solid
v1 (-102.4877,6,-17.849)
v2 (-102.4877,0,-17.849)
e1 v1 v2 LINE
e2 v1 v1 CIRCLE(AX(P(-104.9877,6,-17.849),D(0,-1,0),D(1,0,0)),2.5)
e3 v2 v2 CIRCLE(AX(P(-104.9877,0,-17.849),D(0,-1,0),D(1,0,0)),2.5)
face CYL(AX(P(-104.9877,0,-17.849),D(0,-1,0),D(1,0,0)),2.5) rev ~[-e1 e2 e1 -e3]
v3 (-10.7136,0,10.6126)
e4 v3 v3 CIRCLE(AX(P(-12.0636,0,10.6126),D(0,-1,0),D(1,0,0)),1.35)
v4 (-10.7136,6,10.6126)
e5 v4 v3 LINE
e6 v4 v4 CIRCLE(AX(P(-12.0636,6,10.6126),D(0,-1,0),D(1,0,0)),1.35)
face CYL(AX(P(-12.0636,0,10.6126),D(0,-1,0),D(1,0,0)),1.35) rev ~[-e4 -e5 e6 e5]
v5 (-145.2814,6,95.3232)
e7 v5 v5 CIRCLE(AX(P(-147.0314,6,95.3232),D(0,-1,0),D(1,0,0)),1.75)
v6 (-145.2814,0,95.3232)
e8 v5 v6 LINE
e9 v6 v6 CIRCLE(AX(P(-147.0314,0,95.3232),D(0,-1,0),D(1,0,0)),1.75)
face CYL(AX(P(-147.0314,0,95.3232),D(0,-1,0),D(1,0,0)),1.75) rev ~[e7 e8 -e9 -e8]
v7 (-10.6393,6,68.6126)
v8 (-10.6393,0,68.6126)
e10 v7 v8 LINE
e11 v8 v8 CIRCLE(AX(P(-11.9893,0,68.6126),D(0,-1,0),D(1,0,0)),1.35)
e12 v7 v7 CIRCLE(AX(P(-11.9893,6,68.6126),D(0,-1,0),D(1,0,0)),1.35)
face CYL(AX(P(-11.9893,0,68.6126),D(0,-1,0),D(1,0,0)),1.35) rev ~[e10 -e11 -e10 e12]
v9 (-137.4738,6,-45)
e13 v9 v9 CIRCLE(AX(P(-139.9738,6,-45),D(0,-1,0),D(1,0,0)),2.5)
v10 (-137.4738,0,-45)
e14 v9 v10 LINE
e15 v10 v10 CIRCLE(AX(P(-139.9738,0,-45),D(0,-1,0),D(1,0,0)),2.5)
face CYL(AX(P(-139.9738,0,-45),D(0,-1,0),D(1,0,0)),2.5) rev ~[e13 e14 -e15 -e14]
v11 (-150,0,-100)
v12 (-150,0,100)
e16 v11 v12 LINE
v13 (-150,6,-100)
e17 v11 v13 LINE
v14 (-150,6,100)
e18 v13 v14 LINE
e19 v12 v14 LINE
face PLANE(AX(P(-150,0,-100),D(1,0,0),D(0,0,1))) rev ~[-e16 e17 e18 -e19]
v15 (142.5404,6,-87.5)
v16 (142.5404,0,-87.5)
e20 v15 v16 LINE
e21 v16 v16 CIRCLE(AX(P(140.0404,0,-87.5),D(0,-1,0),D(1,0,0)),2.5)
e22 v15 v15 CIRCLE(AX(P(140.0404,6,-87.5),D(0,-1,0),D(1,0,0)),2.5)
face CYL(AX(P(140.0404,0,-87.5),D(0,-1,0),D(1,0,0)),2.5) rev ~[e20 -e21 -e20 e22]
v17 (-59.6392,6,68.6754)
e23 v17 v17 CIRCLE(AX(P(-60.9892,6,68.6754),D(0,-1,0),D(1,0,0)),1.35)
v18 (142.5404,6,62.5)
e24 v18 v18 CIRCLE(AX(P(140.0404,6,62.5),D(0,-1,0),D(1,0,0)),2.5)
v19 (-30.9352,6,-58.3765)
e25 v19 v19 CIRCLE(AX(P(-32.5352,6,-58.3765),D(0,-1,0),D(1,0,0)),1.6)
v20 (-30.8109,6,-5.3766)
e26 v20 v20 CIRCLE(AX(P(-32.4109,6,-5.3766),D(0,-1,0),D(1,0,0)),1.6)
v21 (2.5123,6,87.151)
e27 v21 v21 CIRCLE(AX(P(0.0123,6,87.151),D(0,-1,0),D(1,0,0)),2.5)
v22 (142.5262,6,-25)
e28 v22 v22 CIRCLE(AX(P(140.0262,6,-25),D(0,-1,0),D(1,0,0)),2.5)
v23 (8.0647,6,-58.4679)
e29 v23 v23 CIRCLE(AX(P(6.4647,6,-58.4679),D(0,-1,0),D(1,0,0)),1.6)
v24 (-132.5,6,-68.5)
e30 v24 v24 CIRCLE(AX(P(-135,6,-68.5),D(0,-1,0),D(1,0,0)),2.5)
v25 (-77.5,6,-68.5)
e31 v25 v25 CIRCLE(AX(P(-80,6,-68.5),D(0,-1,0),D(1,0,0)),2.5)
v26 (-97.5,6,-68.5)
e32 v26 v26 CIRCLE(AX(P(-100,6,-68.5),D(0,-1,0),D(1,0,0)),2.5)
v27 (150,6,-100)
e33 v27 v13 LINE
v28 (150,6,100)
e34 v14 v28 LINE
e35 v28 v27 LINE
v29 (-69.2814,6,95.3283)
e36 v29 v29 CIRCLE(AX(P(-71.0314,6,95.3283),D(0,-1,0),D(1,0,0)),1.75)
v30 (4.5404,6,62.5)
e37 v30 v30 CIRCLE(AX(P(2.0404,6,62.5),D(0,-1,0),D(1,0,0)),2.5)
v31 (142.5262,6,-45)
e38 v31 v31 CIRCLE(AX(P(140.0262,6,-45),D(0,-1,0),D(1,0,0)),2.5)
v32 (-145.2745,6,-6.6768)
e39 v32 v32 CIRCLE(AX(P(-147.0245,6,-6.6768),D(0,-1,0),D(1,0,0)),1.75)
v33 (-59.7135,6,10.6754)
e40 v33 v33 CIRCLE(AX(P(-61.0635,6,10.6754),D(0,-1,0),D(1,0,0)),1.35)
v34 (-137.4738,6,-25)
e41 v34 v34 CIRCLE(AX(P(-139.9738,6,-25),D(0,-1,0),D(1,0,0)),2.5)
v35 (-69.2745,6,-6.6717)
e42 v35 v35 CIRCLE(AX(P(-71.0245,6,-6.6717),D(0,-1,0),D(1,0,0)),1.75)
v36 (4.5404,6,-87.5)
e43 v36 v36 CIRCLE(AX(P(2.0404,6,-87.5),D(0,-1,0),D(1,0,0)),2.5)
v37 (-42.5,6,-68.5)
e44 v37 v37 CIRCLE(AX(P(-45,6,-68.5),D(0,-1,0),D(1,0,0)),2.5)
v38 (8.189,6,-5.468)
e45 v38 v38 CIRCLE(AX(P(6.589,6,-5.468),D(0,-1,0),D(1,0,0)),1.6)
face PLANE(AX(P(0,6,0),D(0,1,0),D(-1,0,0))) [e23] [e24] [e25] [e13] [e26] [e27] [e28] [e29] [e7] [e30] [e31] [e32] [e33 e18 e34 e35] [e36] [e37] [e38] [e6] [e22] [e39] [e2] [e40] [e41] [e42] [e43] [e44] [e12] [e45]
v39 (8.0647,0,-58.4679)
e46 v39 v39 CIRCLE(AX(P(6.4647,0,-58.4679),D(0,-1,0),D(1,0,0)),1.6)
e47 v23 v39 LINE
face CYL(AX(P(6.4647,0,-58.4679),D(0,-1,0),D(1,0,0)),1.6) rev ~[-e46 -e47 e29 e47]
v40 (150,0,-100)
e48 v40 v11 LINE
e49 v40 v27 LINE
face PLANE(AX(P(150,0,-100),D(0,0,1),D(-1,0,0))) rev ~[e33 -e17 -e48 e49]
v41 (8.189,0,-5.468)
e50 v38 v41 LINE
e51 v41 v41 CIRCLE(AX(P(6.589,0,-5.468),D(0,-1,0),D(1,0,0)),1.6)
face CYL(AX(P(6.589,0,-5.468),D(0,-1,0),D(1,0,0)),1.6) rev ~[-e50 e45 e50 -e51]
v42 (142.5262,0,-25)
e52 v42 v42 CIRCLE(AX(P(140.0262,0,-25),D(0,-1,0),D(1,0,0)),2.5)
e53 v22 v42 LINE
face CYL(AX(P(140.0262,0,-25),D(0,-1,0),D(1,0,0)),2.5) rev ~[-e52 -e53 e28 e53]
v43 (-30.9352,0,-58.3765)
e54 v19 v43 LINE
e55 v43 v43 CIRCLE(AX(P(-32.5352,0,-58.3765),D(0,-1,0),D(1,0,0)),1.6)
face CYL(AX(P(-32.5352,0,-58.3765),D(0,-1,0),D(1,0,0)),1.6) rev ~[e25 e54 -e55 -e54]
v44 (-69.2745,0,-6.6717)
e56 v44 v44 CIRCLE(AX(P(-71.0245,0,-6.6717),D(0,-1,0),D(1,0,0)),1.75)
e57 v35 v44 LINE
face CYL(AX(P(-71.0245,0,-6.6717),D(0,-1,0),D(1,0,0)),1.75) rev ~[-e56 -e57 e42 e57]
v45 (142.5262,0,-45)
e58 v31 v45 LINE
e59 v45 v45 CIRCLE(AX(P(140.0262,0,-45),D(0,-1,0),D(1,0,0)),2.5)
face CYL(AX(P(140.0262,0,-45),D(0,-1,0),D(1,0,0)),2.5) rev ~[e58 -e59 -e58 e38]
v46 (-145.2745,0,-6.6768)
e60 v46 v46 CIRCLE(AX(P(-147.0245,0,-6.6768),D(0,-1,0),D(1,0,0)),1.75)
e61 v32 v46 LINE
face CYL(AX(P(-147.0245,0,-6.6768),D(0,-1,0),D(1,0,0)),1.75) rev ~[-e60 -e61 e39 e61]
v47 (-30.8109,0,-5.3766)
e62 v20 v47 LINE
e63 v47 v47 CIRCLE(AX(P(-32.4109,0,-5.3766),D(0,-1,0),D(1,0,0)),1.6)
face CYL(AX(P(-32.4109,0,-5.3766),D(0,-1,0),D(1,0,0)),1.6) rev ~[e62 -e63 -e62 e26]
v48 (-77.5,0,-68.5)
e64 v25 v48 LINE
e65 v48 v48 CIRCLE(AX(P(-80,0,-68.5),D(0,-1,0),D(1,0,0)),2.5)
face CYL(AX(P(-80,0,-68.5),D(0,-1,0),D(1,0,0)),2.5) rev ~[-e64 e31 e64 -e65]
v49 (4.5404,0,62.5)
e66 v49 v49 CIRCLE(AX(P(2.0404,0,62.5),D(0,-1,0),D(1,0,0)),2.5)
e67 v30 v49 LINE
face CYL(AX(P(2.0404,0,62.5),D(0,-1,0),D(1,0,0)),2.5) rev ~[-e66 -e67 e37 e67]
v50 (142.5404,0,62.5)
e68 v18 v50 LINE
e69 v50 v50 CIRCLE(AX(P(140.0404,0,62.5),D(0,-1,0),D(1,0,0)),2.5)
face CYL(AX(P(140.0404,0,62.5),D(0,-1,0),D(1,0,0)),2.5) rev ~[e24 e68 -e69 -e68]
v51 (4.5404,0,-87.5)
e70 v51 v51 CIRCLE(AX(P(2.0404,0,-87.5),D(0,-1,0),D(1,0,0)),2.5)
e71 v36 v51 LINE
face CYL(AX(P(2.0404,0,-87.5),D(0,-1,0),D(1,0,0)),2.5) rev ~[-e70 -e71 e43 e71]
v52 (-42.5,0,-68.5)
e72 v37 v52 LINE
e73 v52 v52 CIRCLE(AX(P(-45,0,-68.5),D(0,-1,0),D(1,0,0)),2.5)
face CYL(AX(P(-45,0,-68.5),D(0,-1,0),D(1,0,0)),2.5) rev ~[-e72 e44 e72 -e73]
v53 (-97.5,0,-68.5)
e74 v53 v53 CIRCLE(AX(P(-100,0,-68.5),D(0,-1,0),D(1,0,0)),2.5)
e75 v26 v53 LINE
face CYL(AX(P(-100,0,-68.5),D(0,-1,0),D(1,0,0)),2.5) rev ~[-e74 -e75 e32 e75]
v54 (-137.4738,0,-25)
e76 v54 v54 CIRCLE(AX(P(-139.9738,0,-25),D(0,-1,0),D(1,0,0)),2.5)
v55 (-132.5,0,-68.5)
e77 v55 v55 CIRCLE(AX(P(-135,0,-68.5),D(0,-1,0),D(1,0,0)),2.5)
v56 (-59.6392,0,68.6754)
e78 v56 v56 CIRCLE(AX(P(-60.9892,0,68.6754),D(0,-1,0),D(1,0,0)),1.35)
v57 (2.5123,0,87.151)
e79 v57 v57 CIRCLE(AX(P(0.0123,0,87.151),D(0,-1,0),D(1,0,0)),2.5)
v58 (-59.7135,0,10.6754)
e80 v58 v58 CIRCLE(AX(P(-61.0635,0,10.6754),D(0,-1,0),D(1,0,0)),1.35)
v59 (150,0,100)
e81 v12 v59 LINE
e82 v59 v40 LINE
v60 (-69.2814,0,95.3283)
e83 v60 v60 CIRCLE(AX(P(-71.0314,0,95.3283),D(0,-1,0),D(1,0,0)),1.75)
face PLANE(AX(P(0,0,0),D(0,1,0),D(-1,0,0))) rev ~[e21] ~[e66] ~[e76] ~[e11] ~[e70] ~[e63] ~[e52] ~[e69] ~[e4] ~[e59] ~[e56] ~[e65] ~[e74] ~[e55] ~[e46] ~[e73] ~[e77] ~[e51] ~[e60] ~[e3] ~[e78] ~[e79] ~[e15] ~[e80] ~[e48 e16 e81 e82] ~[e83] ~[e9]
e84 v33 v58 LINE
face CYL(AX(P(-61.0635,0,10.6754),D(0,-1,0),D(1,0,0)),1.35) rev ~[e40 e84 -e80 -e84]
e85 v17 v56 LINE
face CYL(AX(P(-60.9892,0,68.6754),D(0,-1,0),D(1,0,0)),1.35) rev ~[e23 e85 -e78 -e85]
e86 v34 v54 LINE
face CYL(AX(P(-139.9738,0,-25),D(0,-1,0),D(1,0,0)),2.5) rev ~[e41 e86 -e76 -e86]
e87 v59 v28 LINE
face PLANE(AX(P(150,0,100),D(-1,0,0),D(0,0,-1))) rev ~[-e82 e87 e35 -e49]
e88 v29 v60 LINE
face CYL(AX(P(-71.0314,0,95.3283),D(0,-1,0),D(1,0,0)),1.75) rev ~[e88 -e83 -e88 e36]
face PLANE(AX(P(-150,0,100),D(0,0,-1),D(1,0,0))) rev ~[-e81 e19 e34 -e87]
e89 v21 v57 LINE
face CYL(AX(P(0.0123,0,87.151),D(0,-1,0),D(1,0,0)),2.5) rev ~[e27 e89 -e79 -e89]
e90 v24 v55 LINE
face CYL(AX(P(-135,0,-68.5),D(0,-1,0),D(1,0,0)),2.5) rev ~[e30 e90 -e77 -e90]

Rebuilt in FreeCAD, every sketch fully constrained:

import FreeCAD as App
import Part
import Sketcher
from FreeCAD import Vector

doc = App.newDocument("Part")
body = doc.addObject("PartDesign::Body", "Body")

sketch1 = body.newObject("Sketcher::SketchObject", "Sketch")
sketch1.AttachmentSupport = (doc.getObject("XZ_Plane"), [""])
sketch1.MapMode = "FlatFace"
sketch1.addGeometry(Part.LineSegment(Vector(150, 100, 0), Vector(150, -100, 0)), False)
sketch1.addGeometry(Part.LineSegment(Vector(150, -100, 0), Vector(-150, -100, 0)), False)
sketch1.addGeometry(Part.LineSegment(Vector(-150, -100, 0), Vector(-150, 100, 0)), False)
sketch1.addGeometry(Part.LineSegment(Vector(-150, 100, 0), Vector(150, 100, 0)), False)
sketch1.addConstraint(Sketcher.Constraint("Coincident", 0, 2, 1, 1))
sketch1.addConstraint(Sketcher.Constraint("Coincident", 1, 2, 2, 1))
sketch1.addConstraint(Sketcher.Constraint("Coincident", 2, 2, 3, 1))
sketch1.addConstraint(Sketcher.Constraint("Coincident", 3, 2, 0, 1))
sketch1.addConstraint(Sketcher.Constraint("Vertical", 0))
sketch1.addConstraint(Sketcher.Constraint("Horizontal", 1))
sketch1.addConstraint(Sketcher.Constraint("Vertical", 2))
sketch1.addConstraint(Sketcher.Constraint("Horizontal", 3))
sketch1.addConstraint(Sketcher.Constraint("Symmetric", 0, 2, 2, 2, -1, 1))
sketch1.addConstraint(Sketcher.Constraint("DistanceX", 1, 2, 1, 1, 300.0))
sketch1.addConstraint(Sketcher.Constraint("DistanceY", 0, 2, 0, 1, 200.0))
pad1 = body.newObject("PartDesign::Pad", "Pad")
pad1.Profile = sketch1
pad1.Length = 6
pad1.Reversed = True

sketch2 = body.newObject("Sketcher::SketchObject", "Sketch001")
sketch2.AttachmentSupport = (doc.getObject("XZ_Plane"), [""])
sketch2.MapMode = "FlatFace"
sketch2.addGeometry(Part.Circle(Vector(-12, 68.6, 0), Vector(0, 0, 1), 1.4), False)
sketch2.addGeometry(Part.Circle(Vector(-32.5, -58.4, 0), Vector(0, 0, 1), 1.6), False)
sketch2.addGeometry(Part.Circle(Vector(-32.4, -5.4, 0), Vector(0, 0, 1), 1.6), False)
sketch2.addGeometry(Part.Circle(Vector(6.6, -5.5, 0), Vector(0, 0, 1), 1.6), False)
sketch2.addGeometry(Part.Circle(Vector(-61.1, 10.7, 0), Vector(0, 0, 1), 1.4), False)
sketch2.addGeometry(Part.Circle(Vector(6.5, -58.5, 0), Vector(0, 0, 1), 1.6), False)
sketch2.addGeometry(Part.Circle(Vector(-12.1, 10.6, 0), Vector(0, 0, 1), 1.4), False)
sketch2.addGeometry(Part.Circle(Vector(-71, 95.3, 0), Vector(0, 0, 1), 1.8), False)
sketch2.addGeometry(Part.Circle(Vector(-147, -6.7, 0), Vector(0, 0, 1), 1.8), False)
sketch2.addGeometry(Part.Circle(Vector(-71, -6.7, 0), Vector(0, 0, 1), 1.8), False)
sketch2.addGeometry(Part.Circle(Vector(-147, 95.3, 0), Vector(0, 0, 1), 1.8), False)
sketch2.addGeometry(Part.Circle(Vector(-61, 68.7, 0), Vector(0, 0, 1), 1.4), False)
sketch2.addGeometry(Part.Circle(Vector(2, -87.5, 0), Vector(0, 0, 1), 2.5), False)
sketch2.addGeometry(Part.Circle(Vector(140, -87.5, 0), Vector(0, 0, 1), 2.5), False)
sketch2.addGeometry(Part.Circle(Vector(140, 62.5, 0), Vector(0, 0, 1), 2.5), False)
sketch2.addGeometry(Part.Circle(Vector(2, 62.5, 0), Vector(0, 0, 1), 2.5), False)
sketch2.addGeometry(Part.Circle(Vector(-100, -68.5, 0), Vector(0, 0, 1), 2.5), False)
sketch2.addGeometry(Part.Circle(Vector(-135, -68.5, 0), Vector(0, 0, 1), 2.5), False)
sketch2.addGeometry(Part.Circle(Vector(-80, -68.5, 0), Vector(0, 0, 1), 2.5), False)
sketch2.addGeometry(Part.Circle(Vector(-45, -68.5, 0), Vector(0, 0, 1), 2.5), False)
sketch2.addGeometry(Part.Circle(Vector(140, -25, 0), Vector(0, 0, 1), 2.5), False)
sketch2.addGeometry(Part.Circle(Vector(140, -45, 0), Vector(0, 0, 1), 2.5), False)
sketch2.addGeometry(Part.Circle(Vector(-140, -25, 0), Vector(0, 0, 1), 2.5), False)
sketch2.addGeometry(Part.Circle(Vector(-140, -45, 0), Vector(0, 0, 1), 2.5), False)
sketch2.addGeometry(Part.Circle(Vector(0, 87.2, 0), Vector(0, 0, 1), 2.5), False)
sketch2.addGeometry(Part.Circle(Vector(-105, -17.8, 0), Vector(0, 0, 1), 2.5), False)
sketch2.addConstraint(Sketcher.Constraint("Equal", 1, 2))
sketch2.addConstraint(Sketcher.Constraint("Equal", 2, 3))
sketch2.addConstraint(Sketcher.Constraint("Equal", 0, 4))
sketch2.addConstraint(Sketcher.Constraint("Equal", 3, 5))
sketch2.addConstraint(Sketcher.Constraint("Equal", 4, 6))
sketch2.addConstraint(Sketcher.Constraint("Equal", 7, 8))
sketch2.addConstraint(Sketcher.Constraint("Equal", 8, 9))
sketch2.addConstraint(Sketcher.Constraint("Equal", 9, 10))
sketch2.addConstraint(Sketcher.Constraint("Equal", 6, 11))
sketch2.addConstraint(Sketcher.Constraint("Equal", 12, 13))
sketch2.addConstraint(Sketcher.Constraint("Equal", 13, 14))
sketch2.addConstraint(Sketcher.Constraint("Equal", 14, 15))
sketch2.addConstraint(Sketcher.Constraint("Equal", 15, 16))
sketch2.addConstraint(Sketcher.Constraint("Equal", 16, 17))
sketch2.addConstraint(Sketcher.Constraint("Equal", 17, 18))
sketch2.addConstraint(Sketcher.Constraint("Equal", 18, 19))
sketch2.addConstraint(Sketcher.Constraint("Equal", 19, 20))
sketch2.addConstraint(Sketcher.Constraint("Equal", 20, 21))
sketch2.addConstraint(Sketcher.Constraint("Equal", 21, 22))
sketch2.addConstraint(Sketcher.Constraint("Equal", 22, 23))
sketch2.addConstraint(Sketcher.Constraint("Equal", 23, 24))
sketch2.addConstraint(Sketcher.Constraint("Equal", 24, 25))
sketch2.addConstraint(Sketcher.Constraint("Horizontal", 12, 3, 13, 3))
sketch2.addConstraint(Sketcher.Constraint("Horizontal", 14, 3, 15, 3))
sketch2.addConstraint(Sketcher.Constraint("Horizontal", 16, 3, 17, 3))
sketch2.addConstraint(Sketcher.Constraint("Horizontal", 17, 3, 18, 3))
sketch2.addConstraint(Sketcher.Constraint("Horizontal", 18, 3, 19, 3))
sketch2.addConstraint(Sketcher.Constraint("Horizontal", 20, 3, 22, 3))
sketch2.addConstraint(Sketcher.Constraint("Horizontal", 21, 3, 23, 3))
sketch2.addConstraint(Sketcher.Constraint("Vertical", 13, 3, 14, 3))
sketch2.addConstraint(Sketcher.Constraint("Vertical", 12, 3, 15, 3))
sketch2.addConstraint(Sketcher.Constraint("Vertical", 20, 3, 21, 3))
sketch2.addConstraint(Sketcher.Constraint("Vertical", 22, 3, 23, 3))
sketch2.addConstraint(Sketcher.Constraint("Diameter", 12, 5.0))
sketch2.addConstraint(Sketcher.Constraint("Diameter", 0, 2.7))
sketch2.addConstraint(Sketcher.Constraint("Diameter", 1, 3.2))
sketch2.addConstraint(Sketcher.Constraint("Diameter", 7, 3.5))
sketch2.addConstraint(Sketcher.Constraint("DistanceX", 16, 3, -1, 1, 100.0))
sketch2.addConstraint(Sketcher.Constraint("DistanceX", 17, 3, -1, 1, 135.0))
sketch2.addConstraint(Sketcher.Constraint("DistanceX", 18, 3, -1, 1, 80.0))
sketch2.addConstraint(Sketcher.Constraint("DistanceX", 19, 3, -1, 1, 45.0))
sketch2.addConstraint(Sketcher.Constraint("DistanceY", 20, 3, -1, 1, 25.0))
sketch2.addConstraint(Sketcher.Constraint("DistanceY", 21, 3, -1, 1, 45.0))
sketch2.addConstraint(Sketcher.Constraint("DistanceY", 1, 3, 2, 3, 53.0))
sketch2.addConstraint(Sketcher.Constraint("DistanceX", 2, 3, 3, 3, 39.0))
sketch2.addConstraint(Sketcher.Constraint("DistanceX", 1, 3, 5, 3, 39.0))
sketch2.addConstraint(Sketcher.Constraint("DistanceY", 5, 3, 3, 3, 53.0))
sketch2.addConstraint(Sketcher.Constraint("DistanceX", 4, 3, 6, 3, 49.0))
sketch2.addConstraint(Sketcher.Constraint("DistanceY", 6, 3, 0, 3, 58.0))
sketch2.addConstraint(Sketcher.Constraint("DistanceX", 8, 3, 9, 3, 76.0))
sketch2.addConstraint(Sketcher.Constraint("DistanceX", 10, 3, 7, 3, 76.0))
sketch2.addConstraint(Sketcher.Constraint("DistanceY", 8, 3, 10, 3, 102.0))
sketch2.addConstraint(Sketcher.Constraint("DistanceX", 11, 3, 0, 3, 49.0))
sketch2.addConstraint(Sketcher.Constraint("DistanceY", 4, 3, 11, 3, 58.0))
sketch2.addConstraint(Sketcher.Constraint("DistanceX", 12, 3, 13, 3, 138.0))
sketch2.addConstraint(Sketcher.Constraint("DistanceY", 13, 3, 14, 3, 150.0))
sketch2.addConstraint(Sketcher.Constraint("DistanceY", 12, 3, 19, 3, 19.0))
sketch2.addConstraint(Sketcher.Constraint("DistanceY", 12, 3, -1, 1, 87.5))
sketch2.addConstraint(Sketcher.Constraint("DistanceX", 2, 3, -1, 1, 32.411))
sketch2.addConstraint(Sketcher.Constraint("DistanceY", 3, 3, -1, 1, 5.468))
sketch2.addConstraint(Sketcher.Constraint("DistanceY", -1, 1, 24, 3, 87.151))
sketch2.addConstraint(Sketcher.Constraint("DistanceY", 25, 3, -1, 1, 17.849))
sketch2.addConstraint(Sketcher.Constraint("DistanceX", 1, 3, 0, 3, 20.546))
sketch2.addConstraint(Sketcher.Constraint("DistanceY", 1, 3, 0, 3, 126.989))
sketch2.addConstraint(Sketcher.Constraint("DistanceY", 2, 3, 4, 3, 16.052))
sketch2.addConstraint(Sketcher.Constraint("DistanceX", 7, 3, 0, 3, 59.042))
sketch2.addConstraint(Sketcher.Constraint("DistanceX", 7, 3, 4, 3, 9.968))
sketch2.addConstraint(Sketcher.Constraint("DistanceY", 4, 3, 7, 3, 84.653))
sketch2.addConstraint(Sketcher.Constraint("DistanceX", 8, 3, 4, 3, 85.961))
sketch2.addConstraint(Sketcher.Constraint("DistanceY", 8, 3, 7, 3, 102.005))
sketch2.addConstraint(Sketcher.Constraint("DistanceY", 9, 3, 4, 3, 17.347))
sketch2.addConstraint(Sketcher.Constraint("DistanceX", 6, 3, 12, 3, 14.104))
sketch2.addConstraint(Sketcher.Constraint("DistanceX", 24, 3, 15, 3, 2.028))
sketch2.addConstraint(Sketcher.Constraint("DistanceX", 22, 3, 25, 3, 34.986))
sketch2.addConstraint(Sketcher.Constraint("DistanceX", 0, 3, -1, 1, 11.9893))
sketch2.addConstraint(Sketcher.Constraint("DistanceY", -1, 1, 0, 3, 68.6126))
sketch2.addConstraint(Sketcher.Constraint("DistanceX", -1, 1, 20, 3, 140.0262))
sketch2.addConstraint(Sketcher.Constraint("DistanceX", 22, 3, -1, 1, 139.9738))
pocket1 = body.newObject("PartDesign::Pocket", "Pocket")
pocket1.Profile = sketch2
pocket1.Length = 30
pocket1.Midplane = True

doc.recompute()
